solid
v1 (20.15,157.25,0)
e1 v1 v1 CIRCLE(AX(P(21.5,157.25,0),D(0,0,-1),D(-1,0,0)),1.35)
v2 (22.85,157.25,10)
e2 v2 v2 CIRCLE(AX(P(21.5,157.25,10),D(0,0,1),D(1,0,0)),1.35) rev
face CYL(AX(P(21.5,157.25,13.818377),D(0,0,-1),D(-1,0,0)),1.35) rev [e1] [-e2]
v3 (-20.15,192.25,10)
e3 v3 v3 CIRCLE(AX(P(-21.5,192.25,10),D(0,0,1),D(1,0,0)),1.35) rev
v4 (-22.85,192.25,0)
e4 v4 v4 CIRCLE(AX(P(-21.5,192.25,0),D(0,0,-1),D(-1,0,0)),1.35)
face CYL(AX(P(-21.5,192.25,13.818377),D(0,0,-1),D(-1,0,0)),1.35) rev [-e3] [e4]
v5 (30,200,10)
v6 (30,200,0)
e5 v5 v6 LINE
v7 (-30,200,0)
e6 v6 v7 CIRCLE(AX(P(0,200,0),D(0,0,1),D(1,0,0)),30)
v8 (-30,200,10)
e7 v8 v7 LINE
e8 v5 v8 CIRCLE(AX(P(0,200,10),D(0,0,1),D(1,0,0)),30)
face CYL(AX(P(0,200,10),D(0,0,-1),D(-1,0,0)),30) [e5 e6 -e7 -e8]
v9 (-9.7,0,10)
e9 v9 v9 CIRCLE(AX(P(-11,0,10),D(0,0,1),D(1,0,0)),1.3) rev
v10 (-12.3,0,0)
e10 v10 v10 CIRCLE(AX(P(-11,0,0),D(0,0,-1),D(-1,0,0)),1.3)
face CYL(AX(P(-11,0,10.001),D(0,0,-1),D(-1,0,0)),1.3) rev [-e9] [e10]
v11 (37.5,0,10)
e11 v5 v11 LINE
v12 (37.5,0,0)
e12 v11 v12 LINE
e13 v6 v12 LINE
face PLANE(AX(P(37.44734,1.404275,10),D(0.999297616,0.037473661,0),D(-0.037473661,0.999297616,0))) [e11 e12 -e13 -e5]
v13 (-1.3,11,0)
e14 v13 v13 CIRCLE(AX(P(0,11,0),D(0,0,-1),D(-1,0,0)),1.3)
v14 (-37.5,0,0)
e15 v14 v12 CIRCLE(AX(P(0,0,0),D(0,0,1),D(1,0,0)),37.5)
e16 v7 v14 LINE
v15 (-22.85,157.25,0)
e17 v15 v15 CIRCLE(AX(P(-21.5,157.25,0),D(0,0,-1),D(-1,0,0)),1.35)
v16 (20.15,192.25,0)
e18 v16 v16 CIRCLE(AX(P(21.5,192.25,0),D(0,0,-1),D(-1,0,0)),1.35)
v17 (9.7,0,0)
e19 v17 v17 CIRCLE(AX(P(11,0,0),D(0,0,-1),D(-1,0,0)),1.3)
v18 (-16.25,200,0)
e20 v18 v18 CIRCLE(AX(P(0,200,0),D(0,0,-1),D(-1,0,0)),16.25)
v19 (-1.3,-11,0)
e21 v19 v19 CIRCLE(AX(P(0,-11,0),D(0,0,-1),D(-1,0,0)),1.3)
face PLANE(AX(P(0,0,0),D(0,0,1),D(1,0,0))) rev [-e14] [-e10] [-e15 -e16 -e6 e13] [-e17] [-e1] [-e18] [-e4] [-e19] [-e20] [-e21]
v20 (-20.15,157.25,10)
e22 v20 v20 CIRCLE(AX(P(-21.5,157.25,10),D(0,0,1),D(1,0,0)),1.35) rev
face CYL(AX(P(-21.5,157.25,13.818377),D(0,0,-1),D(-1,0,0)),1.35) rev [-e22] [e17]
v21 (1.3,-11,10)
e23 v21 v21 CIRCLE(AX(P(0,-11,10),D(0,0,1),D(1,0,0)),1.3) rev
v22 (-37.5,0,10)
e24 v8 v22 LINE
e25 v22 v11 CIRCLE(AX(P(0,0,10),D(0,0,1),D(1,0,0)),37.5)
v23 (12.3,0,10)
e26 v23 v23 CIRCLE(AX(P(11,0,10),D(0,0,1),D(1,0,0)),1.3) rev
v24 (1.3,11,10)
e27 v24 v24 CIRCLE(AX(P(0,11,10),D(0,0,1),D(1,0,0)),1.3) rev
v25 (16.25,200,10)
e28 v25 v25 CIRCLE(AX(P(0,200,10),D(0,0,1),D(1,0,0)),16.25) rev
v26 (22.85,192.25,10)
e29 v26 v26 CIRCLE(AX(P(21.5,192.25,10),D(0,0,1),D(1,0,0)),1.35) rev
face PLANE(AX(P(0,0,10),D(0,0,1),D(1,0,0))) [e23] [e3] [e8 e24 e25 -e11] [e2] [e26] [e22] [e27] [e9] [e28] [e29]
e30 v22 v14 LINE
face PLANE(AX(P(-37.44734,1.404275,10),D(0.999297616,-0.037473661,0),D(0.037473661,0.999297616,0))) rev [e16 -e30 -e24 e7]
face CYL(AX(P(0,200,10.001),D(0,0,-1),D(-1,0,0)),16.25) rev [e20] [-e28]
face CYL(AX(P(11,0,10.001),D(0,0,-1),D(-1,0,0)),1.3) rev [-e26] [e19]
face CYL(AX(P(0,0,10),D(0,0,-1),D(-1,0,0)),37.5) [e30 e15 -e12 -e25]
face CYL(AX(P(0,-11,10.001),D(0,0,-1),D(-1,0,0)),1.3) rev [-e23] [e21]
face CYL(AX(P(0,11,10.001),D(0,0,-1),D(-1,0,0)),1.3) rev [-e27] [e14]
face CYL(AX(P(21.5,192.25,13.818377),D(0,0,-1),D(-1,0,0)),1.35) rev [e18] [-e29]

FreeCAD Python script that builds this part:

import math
import FreeCAD as App
import Part
import Sketcher
from FreeCAD import Vector
Q = App.Units.Quantity

doc = App.newDocument("Part")
body = doc.addObject("PartDesign::Body", "Body")

# Sketch on XY plane
sketch1 = doc.addObject("Sketcher::SketchObject", "Sketch")
body.addObject(sketch1)
sketch1.AttachmentSupport = (doc.XY_Plane, [""])
sketch1.MapMode = "FlatFace"
sketch1.addGeometry([
    Part.ArcOfCircle(Part.Circle(Vector(0, 200, 0), Vector(0, 0, 1), 30), math.radians(0), math.radians(180)),
    Part.LineSegment(Vector(-30, 200, 0), Vector(-38, 0, 0)),
    Part.ArcOfCircle(Part.Circle(Vector(0, 0, 0), Vector(0, 0, 1), 38), math.radians(180), math.radians(360)),
    Part.LineSegment(Vector(38, 0, 0), Vector(30, 200, 0)),
], False)
sketch1.addConstraint([
    Sketcher.Constraint("Coincident", 0, 2, 1, 1),
    Sketcher.Constraint("Coincident", 1, 2, 2, 1),
    Sketcher.Constraint("Coincident", 2, 2, 3, 1),
    Sketcher.Constraint("Coincident", 3, 2, 0, 1),
    Sketcher.Constraint("Coincident", 2, 3, -1, 1),
    Sketcher.Constraint("Symmetric", 0, 2, 3, 2, -2),
    Sketcher.Constraint("PointOnObject", 1, 2, -1),
    Sketcher.Constraint("PointOnObject", 2, 2, -1),
    Sketcher.Constraint("Radius", 0, Q("30 mm")),
    Sketcher.Constraint("Radius", 2, Q("37.5 mm")),
    Sketcher.Constraint("DistanceY", -1, 1, 0, 3, Q("200 mm")),
    Sketcher.Constraint("DistanceY", -1, 1, 0, 2, Q("200 mm")),
])
pad1 = doc.addObject("PartDesign::Pad", "Pad")
body.addObject(pad1)
pad1.Profile = sketch1
pad1.Length = 10

# Sketch on XY plane
sketch2 = doc.addObject("Sketcher::SketchObject", "Sketch001")
body.addObject(sketch2)
sketch2.AttachmentSupport = (doc.XY_Plane, [""])
sketch2.MapMode = "FlatFace"
sketch2.addGeometry(Part.Circle(Vector(0, 200, 0), Vector(0, 0, 1), 16), False)
sketch2.addConstraint([
    Sketcher.Constraint("PointOnObject", 0, 3, -2),
    Sketcher.Constraint("Diameter", 0, Q("32.5 mm")),
    Sketcher.Constraint("DistanceY", -1, 1, 0, 3, Q("200 mm")),
])
pocket1 = doc.addObject("PartDesign::Pocket", "Pocket")
body.addObject(pocket1)
pocket1.Profile = sketch2
pocket1.Type = "UpToFirst"
pocket1.Reversed = True

# Sketch on XY plane
sketch3 = doc.addObject("Sketcher::SketchObject", "Sketch002")
body.addObject(sketch3)
sketch3.AttachmentSupport = (doc.XY_Plane, [""])
sketch3.MapMode = "FlatFace"
sketch3.addGeometry(Part.Circle(Vector(0, 11, 0), Vector(0, 0, 1), 1.3), False)
sketch3.addConstraint([
    Sketcher.Constraint("PointOnObject", 0, 3, -2),
    Sketcher.Constraint("Diameter", 0, Q("2.6 mm")),
    Sketcher.Constraint("DistanceY", -1, 1, 0, 3, Q("11 mm")),
])
pocket2 = doc.addObject("PartDesign::Pocket", "Pocket001")
body.addObject(pocket2)
pocket2.Profile = sketch3
pocket2.Type = "UpToFirst"
pocket2.Reversed = True

# Sketch on XY plane
sketch4 = doc.addObject("Sketcher::SketchObject", "Sketch003")
body.addObject(sketch4)
sketch4.AttachmentSupport = (doc.XY_Plane, [""])
sketch4.MapMode = "FlatFace"
sketch4.addGeometry(Part.Circle(Vector(-11, 0, 0), Vector(0, 0, 1), 1.3), False)
sketch4.addConstraint([
    Sketcher.Constraint("PointOnObject", 0, 3, -1),
    Sketcher.Constraint("Diameter", 0, Q("2.6 mm")),
    Sketcher.Constraint("DistanceX", 0, 3, -1, 1, Q("11 mm")),
])
pocket3 = doc.addObject("PartDesign::Pocket", "Pocket002")
body.addObject(pocket3)
pocket3.Profile = sketch4
pocket3.Type = "UpToFirst"
pocket3.Reversed = True

# Sketch on XY plane
sketch5 = doc.addObject("Sketcher::SketchObject", "Sketch004")
body.addObject(sketch5)
sketch5.AttachmentSupport = (doc.XY_Plane, [""])
sketch5.MapMode = "FlatFace"
sketch5.addGeometry(Part.Circle(Vector(0, -11, 0), Vector(0, 0, 1), 1.3), False)
sketch5.addConstraint([
    Sketcher.Constraint("PointOnObject", 0, 3, -2),
    Sketcher.Constraint("Diameter", 0, Q("2.6 mm")),
    Sketcher.Constraint("DistanceY", 0, 3, -1, 1, Q("11 mm")),
])
pocket4 = doc.addObject("PartDesign::Pocket", "Pocket003")
body.addObject(pocket4)
pocket4.Profile = sketch5
pocket4.Type = "UpToFirst"
pocket4.Reversed = True

# Sketch on XY plane
sketch6 = doc.addObject("Sketcher::SketchObject", "Sketch005")
body.addObject(sketch6)
sketch6.AttachmentSupport = (doc.XY_Plane, [""])
sketch6.MapMode = "FlatFace"
sketch6.addGeometry(Part.Circle(Vector(11, 0, 0), Vector(0, 0, 1), 1.3), False)
sketch6.addConstraint([
    Sketcher.Constraint("PointOnObject", 0, 3, -1),
    Sketcher.Constraint("Diameter", 0, Q("2.6 mm")),
    Sketcher.Constraint("DistanceX", -1, 1, 0, 3, Q("11 mm")),
])
pocket5 = doc.addObject("PartDesign::Pocket", "Pocket004")
body.addObject(pocket5)
pocket5.Profile = sketch6
pocket5.Type = "UpToFirst"
pocket5.Reversed = True

# Sketch on XY plane
sketch7 = doc.addObject("Sketcher::SketchObject", "Sketch006")
body.addObject(sketch7)
sketch7.AttachmentSupport = (doc.XY_Plane, [""])
sketch7.MapMode = "FlatFace"
sketch7.addGeometry([
    Part.Circle(Vector(-21.5, 157.2, 0), Vector(0, 0, 1), 1.4),
    Part.Circle(Vector(21.5, 157.2, 0), Vector(0, 0, 1), 1.4),
    Part.Circle(Vector(21.5, 192.2, 0), Vector(0, 0, 1), 1.4),
    Part.Circle(Vector(-21.5, 192.2, 0), Vector(0, 0, 1), 1.4),
], False)
sketch7.addConstraint([
    Sketcher.Constraint("Equal", 0, 1),
    Sketcher.Constraint("Equal", 1, 2),
    Sketcher.Constraint("Equal", 2, 3),
    Sketcher.Constraint("Symmetric", 0, 3, 1, 3, -2),
    Sketcher.Constraint("Symmetric", 2, 3, 3, 3, -2),
    Sketcher.Constraint("Vertical", 1, 3, 2, 3),
    Sketcher.Constraint("Diameter", 0, Q("2.7 mm")),
    Sketcher.Constraint("DistanceX", 0, 3, 1, 3, Q("43 mm")),
    Sketcher.Constraint("DistanceY", 1, 3, 2, 3, Q("35 mm")),
    Sketcher.Constraint("DistanceY", -1, 1, 0, 3, Q("157.25 mm")),
])
pocket6 = doc.addObject("PartDesign::Pocket", "Pocket005")
body.addObject(pocket6)
pocket6.Profile = sketch7
pocket6.Length = 10
pocket6.Reversed = True

doc.recompute()
